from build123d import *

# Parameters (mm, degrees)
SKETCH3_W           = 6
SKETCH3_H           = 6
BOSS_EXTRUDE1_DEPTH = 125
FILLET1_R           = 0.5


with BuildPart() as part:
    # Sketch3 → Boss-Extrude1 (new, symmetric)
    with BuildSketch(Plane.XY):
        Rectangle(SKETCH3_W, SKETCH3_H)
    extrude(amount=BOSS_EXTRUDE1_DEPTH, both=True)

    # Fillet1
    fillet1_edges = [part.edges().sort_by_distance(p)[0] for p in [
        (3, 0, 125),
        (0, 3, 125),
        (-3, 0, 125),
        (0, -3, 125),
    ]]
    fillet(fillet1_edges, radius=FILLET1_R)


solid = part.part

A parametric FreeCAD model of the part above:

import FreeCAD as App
import Part
import Sketcher


def edges_at(feature, points):
    """Names of the edges that pass closest to the given points."""
    edges = feature.Shape.Edges
    near = lambda p: min(range(len(edges)), key=lambda i: edges[i].distToShape(Part.Vertex(*p))[0])
    return sorted({f"Edge{near(p) + 1}" for p in points})

doc = App.newDocument("Part")
body = doc.addObject("PartDesign::Body", "Body")

# Sketch on XY plane
sketch1 = doc.addObject("Sketcher::SketchObject", "Sketch")
body.addObject(sketch1)
sketch1.AttachmentSupport = (doc.XY_Plane, [""])
sketch1.MapMode = "FlatFace"
sketch1.addGeometry([
    Part.LineSegment(App.Vector(-3, 3, 0), App.Vector(-3, -3, 0)),
    Part.LineSegment(App.Vector(-3, -3, 0), App.Vector(3, -3, 0)),
    Part.LineSegment(App.Vector(3, -3, 0), App.Vector(3, 3, 0)),
    Part.LineSegment(App.Vector(3, 3, 0), App.Vector(-3, 3, 0)),
], False)
sketch1.addConstraint([
    Sketcher.Constraint("Coincident", 0, 2, 1, 1),
    Sketcher.Constraint("Coincident", 1, 2, 2, 1),
    Sketcher.Constraint("Coincident", 2, 2, 3, 1),
    Sketcher.Constraint("Coincident", 3, 2, 0, 1),
    Sketcher.Constraint("Vertical", 0),
    Sketcher.Constraint("Horizontal", 1),
    Sketcher.Constraint("Vertical", 2),
    Sketcher.Constraint("Horizontal", 3),
    Sketcher.Constraint("Symmetric", 0, 2, 2, 2, -1, 1),
    Sketcher.Constraint("Equal", 3, 0),
    Sketcher.Constraint("DistanceX", 1, 1, 1, 2, 6.0),
])
pad1 = doc.addObject("PartDesign::Pad", "Pad")
body.addObject(pad1)
pad1.Profile = sketch1
pad1.Length = 250
pad1.Midplane = True
doc.recompute()

fillet = doc.addObject("PartDesign::Fillet", "Fillet")
body.addObject(fillet)
fillet.Base = (pad1, edges_at(pad1, [
    (3, 0, 125),
    (0, 3, 125),
    (-3, 0, 125),
    (0, -3, 125),
]))
fillet.Radius = 0.5

doc.recompute()
